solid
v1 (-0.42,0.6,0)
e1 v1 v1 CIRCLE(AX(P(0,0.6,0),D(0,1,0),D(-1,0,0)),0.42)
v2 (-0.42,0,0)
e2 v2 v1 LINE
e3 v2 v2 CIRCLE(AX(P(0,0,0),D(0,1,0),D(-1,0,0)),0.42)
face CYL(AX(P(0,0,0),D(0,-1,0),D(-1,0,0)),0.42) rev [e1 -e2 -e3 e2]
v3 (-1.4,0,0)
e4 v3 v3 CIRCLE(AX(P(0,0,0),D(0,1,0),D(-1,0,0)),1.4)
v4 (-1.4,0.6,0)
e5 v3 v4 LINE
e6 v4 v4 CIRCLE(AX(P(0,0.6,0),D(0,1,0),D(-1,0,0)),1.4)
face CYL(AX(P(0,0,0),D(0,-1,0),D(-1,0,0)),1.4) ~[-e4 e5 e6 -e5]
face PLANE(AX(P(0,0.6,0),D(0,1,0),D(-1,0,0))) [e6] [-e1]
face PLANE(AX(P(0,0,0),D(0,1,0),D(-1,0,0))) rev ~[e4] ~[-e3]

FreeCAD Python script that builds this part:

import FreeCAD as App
import Part
import Sketcher

V = App.Vector

doc = App.newDocument("Part")
params = doc.addObject("Spreadsheet::Sheet", "Params")
for row, (alias, value) in enumerate([
    ("sketch1_diameter", "2.8 mm"),
    ("sketch1_diameter2", "0.84 mm"),
    ("pad1_length", "0.6 mm"),
], start=1):
    params.set(f"A{row}", alias)
    params.set(f"B{row}", "=" + value)
    params.setAlias(f"B{row}", alias)

body = doc.addObject("PartDesign::Body", "Body")

sketch1 = body.newObject("Sketcher::SketchObject", "Sketch")
sketch1.AttachmentSupport = (doc.getObject("XZ_Plane"), [""])
sketch1.MapMode = "FlatFace"
sketch1.addGeometry(Part.Circle(V(0, 0, 0), V(0, 0, 1), 1.4), False)
sketch1.addGeometry(Part.Circle(V(0, 0, 0), V(0, 0, 1), 0.42), False)
sketch1.addConstraint(Sketcher.Constraint("Coincident", 0, 3, -1, 1))
sketch1.addConstraint(Sketcher.Constraint("Coincident", 1, 3, -1, 1))
sketch1.addConstraint(Sketcher.Constraint("Diameter", 0, 2.8))
sketch1.addConstraint(Sketcher.Constraint("Diameter", 1, 0.84))
sketch1.setExpression("Constraints[2]", "Params.sketch1_diameter")
sketch1.setExpression("Constraints[3]", "Params.sketch1_diameter2")
pad1 = body.newObject("PartDesign::Pad", "Pad")
pad1.Profile = sketch1
pad1.setExpression("Length", "Params.pad1_length")
pad1.Reversed = True

doc.recompute()
